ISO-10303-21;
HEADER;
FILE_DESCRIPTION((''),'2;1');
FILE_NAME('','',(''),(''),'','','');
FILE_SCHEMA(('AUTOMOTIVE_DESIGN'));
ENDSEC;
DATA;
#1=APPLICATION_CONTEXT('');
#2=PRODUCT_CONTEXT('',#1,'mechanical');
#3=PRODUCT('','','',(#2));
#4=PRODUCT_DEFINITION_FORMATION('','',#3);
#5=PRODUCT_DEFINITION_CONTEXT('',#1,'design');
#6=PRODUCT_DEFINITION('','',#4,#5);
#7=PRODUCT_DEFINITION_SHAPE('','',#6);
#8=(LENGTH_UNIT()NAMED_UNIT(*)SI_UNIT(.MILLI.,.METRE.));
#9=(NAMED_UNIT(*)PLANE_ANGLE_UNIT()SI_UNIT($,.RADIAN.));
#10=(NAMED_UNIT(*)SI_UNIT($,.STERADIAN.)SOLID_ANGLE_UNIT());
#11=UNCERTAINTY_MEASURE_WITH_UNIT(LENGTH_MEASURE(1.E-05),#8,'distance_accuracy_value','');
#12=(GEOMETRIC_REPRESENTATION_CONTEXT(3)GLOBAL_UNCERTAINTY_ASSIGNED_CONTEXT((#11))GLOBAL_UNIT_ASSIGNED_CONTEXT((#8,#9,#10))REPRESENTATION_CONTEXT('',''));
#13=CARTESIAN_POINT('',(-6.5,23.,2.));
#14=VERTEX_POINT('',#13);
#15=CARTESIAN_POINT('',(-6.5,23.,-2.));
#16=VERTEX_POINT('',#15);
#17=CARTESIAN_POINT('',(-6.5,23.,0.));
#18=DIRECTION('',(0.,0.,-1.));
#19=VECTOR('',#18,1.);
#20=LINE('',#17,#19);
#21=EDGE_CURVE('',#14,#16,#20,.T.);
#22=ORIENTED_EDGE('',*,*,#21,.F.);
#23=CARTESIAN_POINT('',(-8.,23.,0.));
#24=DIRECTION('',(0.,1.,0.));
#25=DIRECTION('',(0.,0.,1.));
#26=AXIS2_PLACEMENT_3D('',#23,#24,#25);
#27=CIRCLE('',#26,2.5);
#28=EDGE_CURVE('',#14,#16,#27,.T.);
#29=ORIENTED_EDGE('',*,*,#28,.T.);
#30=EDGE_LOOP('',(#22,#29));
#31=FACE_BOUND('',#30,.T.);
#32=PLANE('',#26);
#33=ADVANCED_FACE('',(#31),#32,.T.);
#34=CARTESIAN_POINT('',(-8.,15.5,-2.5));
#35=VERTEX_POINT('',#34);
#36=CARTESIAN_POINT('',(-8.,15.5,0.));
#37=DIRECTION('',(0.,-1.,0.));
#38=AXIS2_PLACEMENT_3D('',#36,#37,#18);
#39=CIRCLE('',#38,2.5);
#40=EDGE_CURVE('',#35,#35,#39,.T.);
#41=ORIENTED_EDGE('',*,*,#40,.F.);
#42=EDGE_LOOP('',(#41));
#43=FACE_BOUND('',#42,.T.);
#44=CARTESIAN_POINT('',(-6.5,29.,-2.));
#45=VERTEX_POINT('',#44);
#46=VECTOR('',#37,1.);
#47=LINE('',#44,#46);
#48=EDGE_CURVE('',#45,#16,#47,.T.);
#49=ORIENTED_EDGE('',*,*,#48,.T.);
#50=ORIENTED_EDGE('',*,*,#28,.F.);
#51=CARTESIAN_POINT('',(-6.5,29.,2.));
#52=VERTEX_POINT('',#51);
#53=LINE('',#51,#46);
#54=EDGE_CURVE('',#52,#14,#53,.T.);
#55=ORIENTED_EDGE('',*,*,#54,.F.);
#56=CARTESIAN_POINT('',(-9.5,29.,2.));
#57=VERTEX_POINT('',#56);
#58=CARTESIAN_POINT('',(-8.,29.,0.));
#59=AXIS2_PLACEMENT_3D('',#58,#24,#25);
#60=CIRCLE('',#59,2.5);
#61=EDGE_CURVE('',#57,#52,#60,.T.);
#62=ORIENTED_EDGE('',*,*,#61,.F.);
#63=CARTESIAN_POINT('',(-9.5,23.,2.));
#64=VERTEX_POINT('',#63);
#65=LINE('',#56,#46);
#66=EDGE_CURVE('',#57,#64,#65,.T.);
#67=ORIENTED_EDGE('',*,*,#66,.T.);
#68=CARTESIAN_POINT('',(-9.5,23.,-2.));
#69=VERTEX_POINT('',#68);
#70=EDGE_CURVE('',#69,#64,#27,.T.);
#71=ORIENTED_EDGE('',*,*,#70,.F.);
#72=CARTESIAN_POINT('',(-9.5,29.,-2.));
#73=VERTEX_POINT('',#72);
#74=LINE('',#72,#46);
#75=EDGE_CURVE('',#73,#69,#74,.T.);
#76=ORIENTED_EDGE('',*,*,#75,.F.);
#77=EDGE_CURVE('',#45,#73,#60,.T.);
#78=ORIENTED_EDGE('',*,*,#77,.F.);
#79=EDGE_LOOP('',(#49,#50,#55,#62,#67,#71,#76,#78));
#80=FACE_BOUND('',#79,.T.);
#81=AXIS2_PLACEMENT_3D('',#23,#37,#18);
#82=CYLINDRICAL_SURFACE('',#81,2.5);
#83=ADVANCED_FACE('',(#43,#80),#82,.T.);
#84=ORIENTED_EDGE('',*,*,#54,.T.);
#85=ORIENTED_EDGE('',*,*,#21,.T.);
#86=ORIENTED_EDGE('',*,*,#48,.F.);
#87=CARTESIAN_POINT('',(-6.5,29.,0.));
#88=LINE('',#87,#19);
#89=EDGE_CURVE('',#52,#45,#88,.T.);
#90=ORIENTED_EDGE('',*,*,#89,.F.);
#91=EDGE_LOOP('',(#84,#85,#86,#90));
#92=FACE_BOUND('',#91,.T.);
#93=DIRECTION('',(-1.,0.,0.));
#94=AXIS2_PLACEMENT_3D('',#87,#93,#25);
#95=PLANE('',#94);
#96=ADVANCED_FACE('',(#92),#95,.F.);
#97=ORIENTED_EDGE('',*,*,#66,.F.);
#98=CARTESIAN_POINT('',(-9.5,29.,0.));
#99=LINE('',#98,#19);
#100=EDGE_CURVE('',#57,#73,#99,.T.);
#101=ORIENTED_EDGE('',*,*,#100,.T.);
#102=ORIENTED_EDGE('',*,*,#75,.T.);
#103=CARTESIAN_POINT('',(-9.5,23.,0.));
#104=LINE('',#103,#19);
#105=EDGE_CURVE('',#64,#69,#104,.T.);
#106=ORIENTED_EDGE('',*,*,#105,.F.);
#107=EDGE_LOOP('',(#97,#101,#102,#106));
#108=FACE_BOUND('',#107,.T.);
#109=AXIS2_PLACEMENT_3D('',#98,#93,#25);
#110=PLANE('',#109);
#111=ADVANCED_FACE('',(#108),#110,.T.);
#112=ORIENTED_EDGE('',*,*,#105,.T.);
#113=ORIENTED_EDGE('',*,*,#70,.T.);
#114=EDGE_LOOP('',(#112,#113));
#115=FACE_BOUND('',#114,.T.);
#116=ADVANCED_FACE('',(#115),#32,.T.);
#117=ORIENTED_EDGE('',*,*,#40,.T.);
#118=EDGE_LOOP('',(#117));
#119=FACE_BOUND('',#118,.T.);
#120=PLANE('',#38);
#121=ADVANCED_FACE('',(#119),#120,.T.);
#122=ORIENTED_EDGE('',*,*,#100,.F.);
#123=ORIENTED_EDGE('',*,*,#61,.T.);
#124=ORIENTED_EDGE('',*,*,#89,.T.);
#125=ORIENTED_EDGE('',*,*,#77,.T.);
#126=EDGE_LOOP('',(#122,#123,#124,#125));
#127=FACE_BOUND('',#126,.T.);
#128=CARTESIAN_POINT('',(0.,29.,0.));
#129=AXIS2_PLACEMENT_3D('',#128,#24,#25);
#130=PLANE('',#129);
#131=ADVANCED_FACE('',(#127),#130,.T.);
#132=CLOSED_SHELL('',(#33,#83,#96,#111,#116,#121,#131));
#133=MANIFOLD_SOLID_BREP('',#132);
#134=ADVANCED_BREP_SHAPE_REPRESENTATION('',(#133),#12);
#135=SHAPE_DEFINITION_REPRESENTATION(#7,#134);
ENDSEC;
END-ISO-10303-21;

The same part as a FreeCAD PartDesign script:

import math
import FreeCAD as App
import Part
import Sketcher

V = App.Vector


def add_polygon(sketch, points):
    """Adds a closed chain of lines whose ends are joined by coincident constraints."""
    first, n = sketch.GeometryCount, len(points)
    for a, b in zip(points, points[1:] + points[:1]):
        sketch.addGeometry(Part.LineSegment(App.Vector(*a, 0), App.Vector(*b, 0)), False)
    for i in range(n):
        sketch.addConstraint(Sketcher.Constraint("Coincident", first + i, 2, first + (i + 1) % n, 1))

doc = App.newDocument("Part")
body = doc.addObject("PartDesign::Body", "Body")

# Sketch on XZ plane
sketch1 = body.newObject("Sketcher::SketchObject", "Sketch")
sketch1.AttachmentSupport = (doc.getObject("XZ_Plane"), [""])
sketch1.MapMode = "FlatFace"
sketch1.addGeometry(Part.LineSegment(V(12, 7, 0), V(17, 7, 0)), False)
sketch1.addGeometry(Part.LineSegment(V(17, 7, 0), V(17, -7, 0)), False)
sketch1.addGeometry(Part.LineSegment(V(17, -7, 0), V(12, -7, 0)), False)
sketch1.addGeometry(Part.ArcOfCircle(Part.Circle(V(0, 0, 0), V(0, 0, 1), 14), math.radians(31), math.radians(329)), False)
sketch1.addConstraint(Sketcher.Constraint("Coincident", 0, 2, 1, 1))
sketch1.addConstraint(Sketcher.Constraint("Coincident", 1, 2, 2, 1))
sketch1.addConstraint(Sketcher.Constraint("Coincident", 2, 2, 3, 2))
sketch1.addConstraint(Sketcher.Constraint("Coincident", 3, 1, 0, 1))
sketch1.addConstraint(Sketcher.Constraint("Horizontal", 0))
sketch1.addConstraint(Sketcher.Constraint("Vertical", 1))
sketch1.addConstraint(Sketcher.Constraint("Horizontal", 2))
sketch1.addConstraint(Sketcher.Constraint("Coincident", 3, 3, -1, 1))
sketch1.addConstraint(Sketcher.Constraint("Vertical", 2, 2, 3, 1))
sketch1.addConstraint(Sketcher.Constraint("Radius", 3, 14.0))
sketch1.addConstraint(Sketcher.Constraint("DistanceY", 1, 2, 1, 1, 14.6))
sketch1.addConstraint(Sketcher.Constraint("DistanceX", -1, 1, 0, 2, 17.0))
pad1 = body.newObject("PartDesign::Pad", "Pad")
pad1.Profile = sketch1
pad1.Length = 19
pad1.Reversed = True

# Sketch on XZ plane
sketch2 = body.newObject("Sketcher::SketchObject", "Sketch001")
sketch2.AttachmentSupport = (doc.getObject("XZ_Plane"), [""])
sketch2.MapMode = "FlatFace"
sketch2.AttachmentOffset = App.Placement(V(0, 0, -19), App.Rotation())
sketch2.addGeometry(Part.Circle(V(-8, 0, 0), V(0, 0, 1), 4.5), False)
sketch2.addConstraint(Sketcher.Constraint("PointOnObject", 0, 3, -1))
sketch2.addConstraint(Sketcher.Constraint("Diameter", 0, 9.0))
sketch2.addConstraint(Sketcher.Constraint("DistanceX", 0, 3, -1, 1, 8.0))
pad2 = body.newObject("PartDesign::Pad", "Pad001")
pad2.Profile = sketch2
pad2.Length = 1.5
pad2.Reversed = True

# Sketch on XZ plane
sketch3 = body.newObject("Sketcher::SketchObject", "Sketch002")
sketch3.AttachmentSupport = (doc.getObject("XZ_Plane"), [""])
sketch3.MapMode = "FlatFace"
sketch3.AttachmentOffset = App.Placement(V(0, 0, -20.5), App.Rotation())
sketch3.addGeometry(Part.Circle(V(-8, 0, 0), V(0, 0, 1), 2.5), False)
sketch3.addConstraint(Sketcher.Constraint("PointOnObject", 0, 3, -1))
sketch3.addConstraint(Sketcher.Constraint("Diameter", 0, 5.0))
sketch3.addConstraint(Sketcher.Constraint("DistanceX", 0, 3, -1, 1, 8.0))
pad3 = body.newObject("PartDesign::Pad", "Pad002")
pad3.Profile = sketch3
pad3.Length = 2.5
pad3.Reversed = True

# Sketch on XZ plane
sketch4 = body.newObject("Sketcher::SketchObject", "Sketch003")
sketch4.AttachmentSupport = (doc.getObject("XZ_Plane"), [""])
sketch4.MapMode = "FlatFace"
sketch4.AttachmentOffset = App.Placement(V(0, 0, -23), App.Rotation())
sketch4.addGeometry(Part.LineSegment(V(-9.5, -2, 0), V(-9.5, 2, 0)), False)
sketch4.addGeometry(Part.ArcOfCircle(Part.Circle(V(-8, 0, 0), V(0, 0, 1), 2.5), math.radians(53), math.radians(127)), False)
sketch4.addGeometry(Part.LineSegment(V(-6.5, 2, 0), V(-6.5, -2, 0)), False)
sketch4.addGeometry(Part.ArcOfCircle(Part.Circle(V(-8, 0, 0), V(0, 0, 1), 2.5), math.radians(-127), math.radians(-53)), False)
sketch4.addConstraint(Sketcher.Constraint("Coincident", 0, 2, 1, 2))
sketch4.addConstraint(Sketcher.Constraint("Coincident", 1, 1, 2, 1))
sketch4.addConstraint(Sketcher.Constraint("Coincident", 2, 2, 3, 2))
sketch4.addConstraint(Sketcher.Constraint("Coincident", 3, 1, 0, 1))
sketch4.addConstraint(Sketcher.Constraint("Vertical", 0))
sketch4.addConstraint(Sketcher.Constraint("Vertical", 2))
sketch4.addConstraint(Sketcher.Constraint("Coincident", 3, 3, 1, 3))
sketch4.addConstraint(Sketcher.Constraint("Equal", 1, 3))
sketch4.addConstraint(Sketcher.Constraint("PointOnObject", 1, 3, -1))
sketch4.addConstraint(Sketcher.Constraint("Horizontal", 0, 2, 1, 1))
sketch4.addConstraint(Sketcher.Constraint("Radius", 1, 2.5))
sketch4.addConstraint(Sketcher.Constraint("DistanceY", 0, 1, 0, 2, 4.0))
sketch4.addConstraint(Sketcher.Constraint("DistanceX", 1, 3, -1, 1, 8.0))
pad4 = body.newObject("PartDesign::Pad", "Pad003")
pad4.Profile = sketch4
pad4.Length = 6
pad4.Reversed = True

# Sketch on YZ plane
sketch5 = body.newObject("Sketcher::SketchObject", "Sketch004")
sketch5.AttachmentSupport = (doc.getObject("YZ_Plane"), [""])
sketch5.MapMode = "FlatFace"
sketch5.AttachmentOffset = App.Placement(V(0, 0, 17), App.Rotation())
add_polygon(sketch5, [(20.5, 14), (0, 14), (0, -14), (19, -14), (19, -4.5), (20.5, -4.5)])  # lines 0-5
sketch5.addConstraint(Sketcher.Constraint("Horizontal", 0))
sketch5.addConstraint(Sketcher.Constraint("Vertical", 1))
sketch5.addConstraint(Sketcher.Constraint("Horizontal", 2))
sketch5.addConstraint(Sketcher.Constraint("Vertical", 3))
sketch5.addConstraint(Sketcher.Constraint("Horizontal", 4))
sketch5.addConstraint(Sketcher.Constraint("Vertical", 5))
sketch5.addConstraint(Sketcher.Constraint("Symmetric", 0, 2, 1, 2, -1, 1))
sketch5.addConstraint(Sketcher.Constraint("DistanceX", 2, 1, 2, 2, 19.0))
sketch5.addConstraint(Sketcher.Constraint("DistanceY", 1, 2, 1, 1, 28.0))
sketch5.addConstraint(Sketcher.Constraint("DistanceX", 0, 2, 0, 1, 20.5))
sketch5.addConstraint(Sketcher.Constraint("DistanceY", 3, 1, 3, 2, 9.5))
pocket1 = body.newObject("PartDesign::Pocket", "Pocket")
pocket1.Profile = sketch5
pocket1.Length = 50

# Sketch on XZ plane
sketch6 = body.newObject("Sketcher::SketchObject", "Sketch005")
sketch6.AttachmentSupport = (doc.getObject("XZ_Plane"), [""])
sketch6.MapMode = "FlatFace"
sketch6.AttachmentOffset = App.Placement(V(0, 0, -20.5), App.Rotation())
sketch6.addGeometry(Part.Circle(V(-8, 0, 0), V(0, 0, 1), 2.5), False)
sketch6.addConstraint(Sketcher.Constraint("PointOnObject", 0, 3, -1))
sketch6.addConstraint(Sketcher.Constraint("Diameter", 0, 5.0))
sketch6.addConstraint(Sketcher.Constraint("DistanceX", 0, 3, -1, 1, 8.0))
pad5 = body.newObject("PartDesign::Pad", "Pad004")
pad5.Profile = sketch6
pad5.Length = 5

doc.recompute()
